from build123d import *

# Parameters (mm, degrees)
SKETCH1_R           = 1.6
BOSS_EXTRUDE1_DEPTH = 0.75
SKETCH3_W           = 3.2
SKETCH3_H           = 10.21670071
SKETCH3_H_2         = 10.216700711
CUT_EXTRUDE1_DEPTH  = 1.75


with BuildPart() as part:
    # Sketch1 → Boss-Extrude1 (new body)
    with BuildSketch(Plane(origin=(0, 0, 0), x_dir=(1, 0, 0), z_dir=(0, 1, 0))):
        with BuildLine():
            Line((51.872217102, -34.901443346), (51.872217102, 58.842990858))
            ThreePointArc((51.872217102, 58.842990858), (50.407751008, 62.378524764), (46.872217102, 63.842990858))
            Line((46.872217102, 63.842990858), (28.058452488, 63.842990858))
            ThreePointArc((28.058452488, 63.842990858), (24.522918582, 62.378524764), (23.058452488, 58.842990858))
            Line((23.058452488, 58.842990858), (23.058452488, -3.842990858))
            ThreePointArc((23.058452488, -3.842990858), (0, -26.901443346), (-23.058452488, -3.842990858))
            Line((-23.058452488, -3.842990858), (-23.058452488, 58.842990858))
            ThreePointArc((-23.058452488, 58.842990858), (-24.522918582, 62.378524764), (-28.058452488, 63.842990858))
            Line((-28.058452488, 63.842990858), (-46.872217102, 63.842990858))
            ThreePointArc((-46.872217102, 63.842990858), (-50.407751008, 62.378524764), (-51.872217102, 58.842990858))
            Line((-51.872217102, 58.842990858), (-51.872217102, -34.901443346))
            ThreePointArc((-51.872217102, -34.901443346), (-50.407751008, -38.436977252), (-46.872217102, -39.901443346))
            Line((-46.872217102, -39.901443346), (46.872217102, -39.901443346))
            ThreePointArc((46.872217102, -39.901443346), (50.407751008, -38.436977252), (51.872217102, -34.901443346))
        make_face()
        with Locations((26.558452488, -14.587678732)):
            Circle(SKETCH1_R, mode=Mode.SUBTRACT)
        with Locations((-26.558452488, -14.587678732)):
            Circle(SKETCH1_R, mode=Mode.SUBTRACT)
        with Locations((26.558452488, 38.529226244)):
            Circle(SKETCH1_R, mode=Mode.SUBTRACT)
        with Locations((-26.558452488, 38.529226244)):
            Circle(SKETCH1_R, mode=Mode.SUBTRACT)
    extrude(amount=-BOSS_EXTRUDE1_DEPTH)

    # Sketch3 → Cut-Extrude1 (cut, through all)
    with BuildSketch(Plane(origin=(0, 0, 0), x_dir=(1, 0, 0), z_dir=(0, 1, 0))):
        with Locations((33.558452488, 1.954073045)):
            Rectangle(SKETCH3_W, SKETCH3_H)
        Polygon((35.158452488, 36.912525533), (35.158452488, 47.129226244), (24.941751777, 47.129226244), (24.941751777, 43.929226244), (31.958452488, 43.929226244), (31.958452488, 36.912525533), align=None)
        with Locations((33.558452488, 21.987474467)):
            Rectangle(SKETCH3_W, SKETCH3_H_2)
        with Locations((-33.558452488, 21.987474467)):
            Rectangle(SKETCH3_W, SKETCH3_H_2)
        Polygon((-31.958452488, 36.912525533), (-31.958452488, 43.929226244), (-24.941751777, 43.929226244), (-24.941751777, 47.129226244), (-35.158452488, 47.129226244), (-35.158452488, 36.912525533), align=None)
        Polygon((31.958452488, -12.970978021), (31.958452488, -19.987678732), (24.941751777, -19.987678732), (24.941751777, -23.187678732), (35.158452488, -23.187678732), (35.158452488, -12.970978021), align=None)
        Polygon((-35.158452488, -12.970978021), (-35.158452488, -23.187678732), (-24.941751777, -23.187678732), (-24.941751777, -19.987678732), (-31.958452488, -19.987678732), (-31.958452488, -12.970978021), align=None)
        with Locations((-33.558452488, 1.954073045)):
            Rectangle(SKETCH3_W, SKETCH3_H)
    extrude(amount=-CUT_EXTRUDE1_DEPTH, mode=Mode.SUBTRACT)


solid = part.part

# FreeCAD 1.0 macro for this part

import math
import FreeCAD as App
import Part
import Sketcher
from FreeCAD import Vector

doc = App.newDocument("Part")
body = doc.addObject("PartDesign::Body", "Body")

# Sketch on XZ plane
sketch1 = body.newObject("Sketcher::SketchObject", "Sketch")
sketch1.AttachmentSupport = (doc.getObject("XZ_Plane"), [""])
sketch1.MapMode = "FlatFace"
sketch1.addGeometry(Part.LineSegment(Vector(51.9, 34.9, 0), Vector(51.9, -58.8, 0)), False)
sketch1.addGeometry(Part.ArcOfCircle(Part.Circle(Vector(46.9, -58.8, 0), Vector(0, 0, 1), 5), math.radians(-90), math.radians(0)), False)
sketch1.addGeometry(Part.LineSegment(Vector(46.9, -63.8, 0), Vector(28.1, -63.8, 0)), False)
sketch1.addGeometry(Part.ArcOfCircle(Part.Circle(Vector(28.1, -58.8, 0), Vector(0, 0, 1), 5), math.radians(180), math.radians(270)), False)
sketch1.addGeometry(Part.LineSegment(Vector(23.1, -58.8, 0), Vector(23.1, 3.8, 0)), False)
sketch1.addGeometry(Part.ArcOfCircle(Part.Circle(Vector(0, 3.8, 0), Vector(0, 0, 1), 23.1), math.radians(0), math.radians(180)), False)
sketch1.addGeometry(Part.LineSegment(Vector(-23.1, 3.8, 0), Vector(-23.1, -58.8, 0)), False)
sketch1.addGeometry(Part.ArcOfCircle(Part.Circle(Vector(-28.1, -58.8, 0), Vector(0, 0, 1), 5), math.radians(-90), math.radians(0)), False)
sketch1.addGeometry(Part.LineSegment(Vector(-28.1, -63.8, 0), Vector(-46.9, -63.8, 0)), False)
sketch1.addGeometry(Part.ArcOfCircle(Part.Circle(Vector(-46.9, -58.8, 0), Vector(0, 0, 1), 5), math.radians(180), math.radians(270)), False)
sketch1.addGeometry(Part.LineSegment(Vector(-51.9, -58.8, 0), Vector(-51.9, 34.9, 0)), False)
sketch1.addGeometry(Part.ArcOfCircle(Part.Circle(Vector(-46.9, 34.9, 0), Vector(0, 0, 1), 5), math.radians(90), math.radians(180)), False)
sketch1.addGeometry(Part.LineSegment(Vector(-46.9, 39.9, 0), Vector(46.9, 39.9, 0)), False)
sketch1.addGeometry(Part.ArcOfCircle(Part.Circle(Vector(46.9, 34.9, 0), Vector(0, 0, 1), 5), math.radians(0), math.radians(90)), False)
sketch1.addGeometry(Part.Circle(Vector(-26.6, 14.6, 0), Vector(0, 0, 1), 1.6), False)
sketch1.addGeometry(Part.Circle(Vector(26.6, 14.6, 0), Vector(0, 0, 1), 1.6), False)
sketch1.addGeometry(Part.Circle(Vector(-26.6, -38.5, 0), Vector(0, 0, 1), 1.6), False)
sketch1.addGeometry(Part.Circle(Vector(26.6, -38.5, 0), Vector(0, 0, 1), 1.6), False)
sketch1.addConstraint(Sketcher.Constraint("Tangent", 0, 2, 1, 2))
sketch1.addConstraint(Sketcher.Constraint("Tangent", 1, 1, 2, 1))
sketch1.addConstraint(Sketcher.Constraint("Tangent", 2, 2, 3, 2))
sketch1.addConstraint(Sketcher.Constraint("Tangent", 3, 1, 4, 1))
sketch1.addConstraint(Sketcher.Constraint("Tangent", 4, 2, 5, 1))
sketch1.addConstraint(Sketcher.Constraint("Tangent", 5, 2, 6, 1))
sketch1.addConstraint(Sketcher.Constraint("Tangent", 6, 2, 7, 2))
sketch1.addConstraint(Sketcher.Constraint("Tangent", 7, 1, 8, 1))
sketch1.addConstraint(Sketcher.Constraint("Tangent", 8, 2, 9, 2))
sketch1.addConstraint(Sketcher.Constraint("Tangent", 9, 1, 10, 1))
sketch1.addConstraint(Sketcher.Constraint("Tangent", 10, 2, 11, 2))
sketch1.addConstraint(Sketcher.Constraint("Tangent", 11, 1, 12, 1))
sketch1.addConstraint(Sketcher.Constraint("Tangent", 12, 2, 13, 2))
sketch1.addConstraint(Sketcher.Constraint("Tangent", 13, 1, 0, 1))
sketch1.addConstraint(Sketcher.Constraint("Vertical", 0))
sketch1.addConstraint(Sketcher.Constraint("Horizontal", 2))
sketch1.addConstraint(Sketcher.Constraint("Vertical", 4))
sketch1.addConstraint(Sketcher.Constraint("Vertical", 6))
sketch1.addConstraint(Sketcher.Constraint("Horizontal", 8))
sketch1.addConstraint(Sketcher.Constraint("Vertical", 10))
sketch1.addConstraint(Sketcher.Constraint("Horizontal", 12))
sketch1.addConstraint(Sketcher.Constraint("Equal", 1, 3))
sketch1.addConstraint(Sketcher.Constraint("Equal", 3, 7))
sketch1.addConstraint(Sketcher.Constraint("Equal", 7, 9))
sketch1.addConstraint(Sketcher.Constraint("Equal", 9, 11))
sketch1.addConstraint(Sketcher.Constraint("Equal", 11, 13))
sketch1.addConstraint(Sketcher.Constraint("Equal", 14, 15))
sketch1.addConstraint(Sketcher.Constraint("Equal", 15, 16))
sketch1.addConstraint(Sketcher.Constraint("Equal", 16, 17))
sketch1.addConstraint(Sketcher.Constraint("Symmetric", 3, 3, 7, 3, -2))
sketch1.addConstraint(Sketcher.Constraint("Symmetric", 14, 3, 15, 3, -2))
sketch1.addConstraint(Sketcher.Constraint("Symmetric", 16, 3, 17, 3, -2))
sketch1.addConstraint(Sketcher.Constraint("Vertical", 14, 3, 16, 3))
sketch1.addConstraint(Sketcher.Constraint("Equal", 2, 8))
sketch1.addConstraint(Sketcher.Constraint("Equal", 12, 0))
sketch1.addConstraint(Sketcher.Constraint("Radius", 1, 5.0))
sketch1.addConstraint(Sketcher.Constraint("Diameter", 14, 3.2))
sketch1.addConstraint(Sketcher.Constraint("DistanceX", 7, 3, 14, 3, 1.5))
sketch1.addConstraint(Sketcher.Constraint("Radius", 5, 23.058452))
sketch1.addConstraint(Sketcher.Constraint("DistanceY", 4, 1, 4, 2, 62.685982))
sketch1.addConstraint(Sketcher.Constraint("DistanceX", 2, 2, 2, 1, 18.813765))
sketch1.addConstraint(Sketcher.Constraint("DistanceY", 1, 3, -1, 1, 58.842991))
sketch1.addConstraint(Sketcher.Constraint("DistanceY", -1, 1, 14, 3, 14.587679))
sketch1.addConstraint(Sketcher.Constraint("DistanceY", 16, 3, 10, 2, 73.43067))
pad1 = body.newObject("PartDesign::Pad", "Pad")
pad1.Profile = sketch1
pad1.Length = 0.75

# Sketch on XZ plane
sketch2 = body.newObject("Sketcher::SketchObject", "Sketch001")
sketch2.AttachmentSupport = (doc.getObject("XZ_Plane"), [""])
sketch2.MapMode = "FlatFace"
sketch2.addGeometry(Part.LineSegment(Vector(32, -7.1, 0), Vector(32, 3.2, 0)), False)
sketch2.addGeometry(Part.LineSegment(Vector(32, 3.2, 0), Vector(35.2, 3.2, 0)), False)
sketch2.addGeometry(Part.LineSegment(Vector(35.2, 3.2, 0), Vector(35.2, -7.1, 0)), False)
sketch2.addGeometry(Part.LineSegment(Vector(35.2, -7.1, 0), Vector(32, -7.1, 0)), False)
sketch2.addGeometry(Part.LineSegment(Vector(35.2, -36.9, 0), Vector(35.2, -47.1, 0)), False)
sketch2.addGeometry(Part.LineSegment(Vector(35.2, -47.1, 0), Vector(24.9, -47.1, 0)), False)
sketch2.addGeometry(Part.LineSegment(Vector(24.9, -47.1, 0), Vector(24.9, -43.9, 0)), False)
sketch2.addGeometry(Part.LineSegment(Vector(24.9, -43.9, 0), Vector(32, -43.9, 0)), False)
sketch2.addGeometry(Part.LineSegment(Vector(32, -43.9, 0), Vector(32, -36.9, 0)), False)
sketch2.addGeometry(Part.LineSegment(Vector(32, -36.9, 0), Vector(35.2, -36.9, 0)), False)
sketch2.addGeometry(Part.LineSegment(Vector(32, -27.1, 0), Vector(32, -16.9, 0)), False)
sketch2.addGeometry(Part.LineSegment(Vector(32, -16.9, 0), Vector(35.2, -16.9, 0)), False)
sketch2.addGeometry(Part.LineSegment(Vector(35.2, -16.9, 0), Vector(35.2, -27.1, 0)), False)
sketch2.addGeometry(Part.LineSegment(Vector(35.2, -27.1, 0), Vector(32, -27.1, 0)), False)
sketch2.addGeometry(Part.LineSegment(Vector(-35.2, -27.1, 0), Vector(-35.2, -16.9, 0)), False)
sketch2.addGeometry(Part.LineSegment(Vector(-35.2, -16.9, 0), Vector(-32, -16.9, 0)), False)
sketch2.addGeometry(Part.LineSegment(Vector(-32, -16.9, 0), Vector(-32, -27.1, 0)), False)
sketch2.addGeometry(Part.LineSegment(Vector(-32, -27.1, 0), Vector(-35.2, -27.1, 0)), False)
sketch2.addGeometry(Part.LineSegment(Vector(-32, -36.9, 0), Vector(-32, -43.9, 0)), False)
sketch2.addGeometry(Part.LineSegment(Vector(-32, -43.9, 0), Vector(-24.9, -43.9, 0)), False)
sketch2.addGeometry(Part.LineSegment(Vector(-24.9, -43.9, 0), Vector(-24.9, -47.1, 0)), False)
sketch2.addGeometry(Part.LineSegment(Vector(-24.9, -47.1, 0), Vector(-35.2, -47.1, 0)), False)
sketch2.addGeometry(Part.LineSegment(Vector(-35.2, -47.1, 0), Vector(-35.2, -36.9, 0)), False)
sketch2.addGeometry(Part.LineSegment(Vector(-35.2, -36.9, 0), Vector(-32, -36.9, 0)), False)
sketch2.addGeometry(Part.LineSegment(Vector(32, 13, 0), Vector(32, 20, 0)), False)
sketch2.addGeometry(Part.LineSegment(Vector(32, 20, 0), Vector(24.9, 20, 0)), False)
sketch2.addGeometry(Part.LineSegment(Vector(24.9, 20, 0), Vector(24.9, 23.2, 0)), False)
sketch2.addGeometry(Part.LineSegment(Vector(24.9, 23.2, 0), Vector(35.2, 23.2, 0)), False)
sketch2.addGeometry(Part.LineSegment(Vector(35.2, 23.2, 0), Vector(35.2, 13, 0)), False)
sketch2.addGeometry(Part.LineSegment(Vector(35.2, 13, 0), Vector(32, 13, 0)), False)
sketch2.addGeometry(Part.LineSegment(Vector(-35.2, 13, 0), Vector(-35.2, 23.2, 0)), False)
sketch2.addGeometry(Part.LineSegment(Vector(-35.2, 23.2, 0), Vector(-24.9, 23.2, 0)), False)
sketch2.addGeometry(Part.LineSegment(Vector(-24.9, 23.2, 0), Vector(-24.9, 20, 0)), False)
sketch2.addGeometry(Part.LineSegment(Vector(-24.9, 20, 0), Vector(-32, 20, 0)), False)
sketch2.addGeometry(Part.LineSegment(Vector(-32, 20, 0), Vector(-32, 13, 0)), False)
sketch2.addGeometry(Part.LineSegment(Vector(-32, 13, 0), Vector(-35.2, 13, 0)), False)
sketch2.addGeometry(Part.LineSegment(Vector(-35.2, -7.1, 0), Vector(-35.2, 3.2, 0)), False)
sketch2.addGeometry(Part.LineSegment(Vector(-35.2, 3.2, 0), Vector(-32, 3.2, 0)), False)
sketch2.addGeometry(Part.LineSegment(Vector(-32, 3.2, 0), Vector(-32, -7.1, 0)), False)
sketch2.addGeometry(Part.LineSegment(Vector(-32, -7.1, 0), Vector(-35.2, -7.1, 0)), False)
sketch2.addConstraint(Sketcher.Constraint("Coincident", 0, 2, 1, 1))
sketch2.addConstraint(Sketcher.Constraint("Coincident", 1, 2, 2, 1))
sketch2.addConstraint(Sketcher.Constraint("Coincident", 2, 2, 3, 1))
sketch2.addConstraint(Sketcher.Constraint("Coincident", 3, 2, 0, 1))
sketch2.addConstraint(Sketcher.Constraint("Coincident", 4, 2, 5, 1))
sketch2.addConstraint(Sketcher.Constraint("Coincident", 5, 2, 6, 1))
sketch2.addConstraint(Sketcher.Constraint("Coincident", 6, 2, 7, 1))
sketch2.addConstraint(Sketcher.Constraint("Coincident", 7, 2, 8, 1))
sketch2.addConstraint(Sketcher.Constraint("Coincident", 8, 2, 9, 1))
sketch2.addConstraint(Sketcher.Constraint("Coincident", 9, 2, 4, 1))
sketch2.addConstraint(Sketcher.Constraint("Coincident", 10, 2, 11, 1))
sketch2.addConstraint(Sketcher.Constraint("Coincident", 11, 2, 12, 1))
sketch2.addConstraint(Sketcher.Constraint("Coincident", 12, 2, 13, 1))
sketch2.addConstraint(Sketcher.Constraint("Coincident", 13, 2, 10, 1))
sketch2.addConstraint(Sketcher.Constraint("Coincident", 14, 2, 15, 1))
sketch2.addConstraint(Sketcher.Constraint("Coincident", 15, 2, 16, 1))
sketch2.addConstraint(Sketcher.Constraint("Coincident", 16, 2, 17, 1))
sketch2.addConstraint(Sketcher.Constraint("Coincident", 17, 2, 14, 1))
sketch2.addConstraint(Sketcher.Constraint("Coincident", 18, 2, 19, 1))
sketch2.addConstraint(Sketcher.Constraint("Coincident", 19, 2, 20, 1))
sketch2.addConstraint(Sketcher.Constraint("Coincident", 20, 2, 21, 1))
sketch2.addConstraint(Sketcher.Constraint("Coincident", 21, 2, 22, 1))
sketch2.addConstraint(Sketcher.Constraint("Coincident", 22, 2, 23, 1))
sketch2.addConstraint(Sketcher.Constraint("Coincident", 23, 2, 18, 1))
sketch2.addConstraint(Sketcher.Constraint("Coincident", 24, 2, 25, 1))
sketch2.addConstraint(Sketcher.Constraint("Coincident", 25, 2, 26, 1))
sketch2.addConstraint(Sketcher.Constraint("Coincident", 26, 2, 27, 1))
sketch2.addConstraint(Sketcher.Constraint("Coincident", 27, 2, 28, 1))
sketch2.addConstraint(Sketcher.Constraint("Coincident", 28, 2, 29, 1))
sketch2.addConstraint(Sketcher.Constraint("Coincident", 29, 2, 24, 1))
sketch2.addConstraint(Sketcher.Constraint("Coincident", 30, 2, 31, 1))
sketch2.addConstraint(Sketcher.Constraint("Coincident", 31, 2, 32, 1))
sketch2.addConstraint(Sketcher.Constraint("Coincident", 32, 2, 33, 1))
sketch2.addConstraint(Sketcher.Constraint("Coincident", 33, 2, 34, 1))
sketch2.addConstraint(Sketcher.Constraint("Coincident", 34, 2, 35, 1))
sketch2.addConstraint(Sketcher.Constraint("Coincident", 35, 2, 30, 1))
sketch2.addConstraint(Sketcher.Constraint("Coincident", 36, 2, 37, 1))
sketch2.addConstraint(Sketcher.Constraint("Coincident", 37, 2, 38, 1))
sketch2.addConstraint(Sketcher.Constraint("Coincident", 38, 2, 39, 1))
sketch2.addConstraint(Sketcher.Constraint("Coincident", 39, 2, 36, 1))
sketch2.addConstraint(Sketcher.Constraint("Vertical", 0))
sketch2.addConstraint(Sketcher.Constraint("Horizontal", 1))
sketch2.addConstraint(Sketcher.Constraint("Vertical", 2))
sketch2.addConstraint(Sketcher.Constraint("Horizontal", 3))
sketch2.addConstraint(Sketcher.Constraint("Vertical", 4))
sketch2.addConstraint(Sketcher.Constraint("Horizontal", 5))
sketch2.addConstraint(Sketcher.Constraint("Vertical", 6))
sketch2.addConstraint(Sketcher.Constraint("Horizontal", 7))
sketch2.addConstraint(Sketcher.Constraint("Vertical", 8))
sketch2.addConstraint(Sketcher.Constraint("Horizontal", 9))
sketch2.addConstraint(Sketcher.Constraint("Vertical", 10))
sketch2.addConstraint(Sketcher.Constraint("Horizontal", 11))
sketch2.addConstraint(Sketcher.Constraint("Vertical", 12))
sketch2.addConstraint(Sketcher.Constraint("Horizontal", 13))
sketch2.addConstraint(Sketcher.Constraint("Vertical", 14))
sketch2.addConstraint(Sketcher.Constraint("Horizontal", 15))
sketch2.addConstraint(Sketcher.Constraint("Vertical", 16))
sketch2.addConstraint(Sketcher.Constraint("Horizontal", 17))
sketch2.addConstraint(Sketcher.Constraint("Vertical", 18))
sketch2.addConstraint(Sketcher.Constraint("Horizontal", 19))
sketch2.addConstraint(Sketcher.Constraint("Vertical", 20))
sketch2.addConstraint(Sketcher.Constraint("Horizontal", 21))
sketch2.addConstraint(Sketcher.Constraint("Vertical", 22))
sketch2.addConstraint(Sketcher.Constraint("Horizontal", 23))
sketch2.addConstraint(Sketcher.Constraint("Vertical", 24))
sketch2.addConstraint(Sketcher.Constraint("Horizontal", 25))
sketch2.addConstraint(Sketcher.Constraint("Vertical", 26))
sketch2.addConstraint(Sketcher.Constraint("Horizontal", 27))
sketch2.addConstraint(Sketcher.Constraint("Vertical", 28))
sketch2.addConstraint(Sketcher.Constraint("Horizontal", 29))
sketch2.addConstraint(Sketcher.Constraint("Vertical", 30))
sketch2.addConstraint(Sketcher.Constraint("Horizontal", 31))
sketch2.addConstraint(Sketcher.Constraint("Vertical", 32))
sketch2.addConstraint(Sketcher.Constraint("Horizontal", 33))
sketch2.addConstraint(Sketcher.Constraint("Vertical", 34))
sketch2.addConstraint(Sketcher.Constraint("Horizontal", 35))
sketch2.addConstraint(Sketcher.Constraint("Vertical", 36))
sketch2.addConstraint(Sketcher.Constraint("Horizontal", 37))
sketch2.addConstraint(Sketcher.Constraint("Vertical", 38))
sketch2.addConstraint(Sketcher.Constraint("Horizontal", 39))
sketch2.addConstraint(Sketcher.Constraint("Symmetric", 11, 2, 14, 2, -2))
sketch2.addConstraint(Sketcher.Constraint("Symmetric", 13, 2, 16, 2, -2))
sketch2.addConstraint(Sketcher.Constraint("Symmetric", 7, 2, 18, 2, -2))
sketch2.addConstraint(Sketcher.Constraint("Symmetric", 5, 2, 20, 2, -2))
sketch2.addConstraint(Sketcher.Constraint("Symmetric", 9, 2, 22, 2, -2))
sketch2.addConstraint(Sketcher.Constraint("Symmetric", 27, 2, 30, 2, -2))
sketch2.addConstraint(Sketcher.Constraint("Symmetric", 25, 2, 32, 2, -2))
sketch2.addConstraint(Sketcher.Constraint("Symmetric", 29, 2, 34, 2, -2))
sketch2.addConstraint(Sketcher.Constraint("Symmetric", 1, 2, 36, 2, -2))
sketch2.addConstraint(Sketcher.Constraint("Symmetric", 3, 2, 38, 2, -2))
sketch2.addConstraint(Sketcher.Constraint("Vertical", 2, 2, 4, 2))
sketch2.addConstraint(Sketcher.Constraint("Vertical", 3, 2, 7, 2))
sketch2.addConstraint(Sketcher.Constraint("Vertical", 8, 2, 10, 2))
sketch2.addConstraint(Sketcher.Constraint("Vertical", 9, 2, 11, 2))
sketch2.addConstraint(Sketcher.Constraint("Vertical", 13, 2, 24, 2))
sketch2.addConstraint(Sketcher.Constraint("Vertical", 6, 2, 25, 2))
sketch2.addConstraint(Sketcher.Constraint("Vertical", 12, 2, 27, 2))
sketch2.addConstraint(Sketcher.Constraint("Equal", 31, 0))
sketch2.addConstraint(Sketcher.Constraint("Equal", 2, 4))
sketch2.addConstraint(Sketcher.Constraint("Equal", 39, 6))
sketch2.addConstraint(Sketcher.Constraint("Equal", 4, 10))
sketch2.addConstraint(Sketcher.Constraint("Equal", 18, 24))
sketch2.addConstraint(Sketcher.Constraint("Equal", 20, 26))
sketch2.addConstraint(Sketcher.Constraint("DistanceX", 1, 1, 1, 2, 3.2))
sketch2.addConstraint(Sketcher.Constraint("DistanceX", 5, 2, 5, 1, 10.216701))
sketch2.addConstraint(Sketcher.Constraint("DistanceY", 10, 2, 3, 2, 9.816701))
sketch2.addConstraint(Sketcher.Constraint("DistanceY", 8, 2, 10, 2, 20.033401))
sketch2.addConstraint(Sketcher.Constraint("DistanceY", 0, 2, 24, 2, 16.833401))
sketch2.addConstraint(Sketcher.Constraint("DistanceX", -1, 1, 5, 2, 24.941752))
sketch2.addConstraint(Sketcher.Constraint("DistanceY", -1, 1, 24, 2, 19.987679))
pocket1 = body.newObject("PartDesign::Pocket", "Pocket")
pocket1.Profile = sketch2
pocket1.Type = "ThroughAll"
pocket1.Reversed = True

doc.recompute()
